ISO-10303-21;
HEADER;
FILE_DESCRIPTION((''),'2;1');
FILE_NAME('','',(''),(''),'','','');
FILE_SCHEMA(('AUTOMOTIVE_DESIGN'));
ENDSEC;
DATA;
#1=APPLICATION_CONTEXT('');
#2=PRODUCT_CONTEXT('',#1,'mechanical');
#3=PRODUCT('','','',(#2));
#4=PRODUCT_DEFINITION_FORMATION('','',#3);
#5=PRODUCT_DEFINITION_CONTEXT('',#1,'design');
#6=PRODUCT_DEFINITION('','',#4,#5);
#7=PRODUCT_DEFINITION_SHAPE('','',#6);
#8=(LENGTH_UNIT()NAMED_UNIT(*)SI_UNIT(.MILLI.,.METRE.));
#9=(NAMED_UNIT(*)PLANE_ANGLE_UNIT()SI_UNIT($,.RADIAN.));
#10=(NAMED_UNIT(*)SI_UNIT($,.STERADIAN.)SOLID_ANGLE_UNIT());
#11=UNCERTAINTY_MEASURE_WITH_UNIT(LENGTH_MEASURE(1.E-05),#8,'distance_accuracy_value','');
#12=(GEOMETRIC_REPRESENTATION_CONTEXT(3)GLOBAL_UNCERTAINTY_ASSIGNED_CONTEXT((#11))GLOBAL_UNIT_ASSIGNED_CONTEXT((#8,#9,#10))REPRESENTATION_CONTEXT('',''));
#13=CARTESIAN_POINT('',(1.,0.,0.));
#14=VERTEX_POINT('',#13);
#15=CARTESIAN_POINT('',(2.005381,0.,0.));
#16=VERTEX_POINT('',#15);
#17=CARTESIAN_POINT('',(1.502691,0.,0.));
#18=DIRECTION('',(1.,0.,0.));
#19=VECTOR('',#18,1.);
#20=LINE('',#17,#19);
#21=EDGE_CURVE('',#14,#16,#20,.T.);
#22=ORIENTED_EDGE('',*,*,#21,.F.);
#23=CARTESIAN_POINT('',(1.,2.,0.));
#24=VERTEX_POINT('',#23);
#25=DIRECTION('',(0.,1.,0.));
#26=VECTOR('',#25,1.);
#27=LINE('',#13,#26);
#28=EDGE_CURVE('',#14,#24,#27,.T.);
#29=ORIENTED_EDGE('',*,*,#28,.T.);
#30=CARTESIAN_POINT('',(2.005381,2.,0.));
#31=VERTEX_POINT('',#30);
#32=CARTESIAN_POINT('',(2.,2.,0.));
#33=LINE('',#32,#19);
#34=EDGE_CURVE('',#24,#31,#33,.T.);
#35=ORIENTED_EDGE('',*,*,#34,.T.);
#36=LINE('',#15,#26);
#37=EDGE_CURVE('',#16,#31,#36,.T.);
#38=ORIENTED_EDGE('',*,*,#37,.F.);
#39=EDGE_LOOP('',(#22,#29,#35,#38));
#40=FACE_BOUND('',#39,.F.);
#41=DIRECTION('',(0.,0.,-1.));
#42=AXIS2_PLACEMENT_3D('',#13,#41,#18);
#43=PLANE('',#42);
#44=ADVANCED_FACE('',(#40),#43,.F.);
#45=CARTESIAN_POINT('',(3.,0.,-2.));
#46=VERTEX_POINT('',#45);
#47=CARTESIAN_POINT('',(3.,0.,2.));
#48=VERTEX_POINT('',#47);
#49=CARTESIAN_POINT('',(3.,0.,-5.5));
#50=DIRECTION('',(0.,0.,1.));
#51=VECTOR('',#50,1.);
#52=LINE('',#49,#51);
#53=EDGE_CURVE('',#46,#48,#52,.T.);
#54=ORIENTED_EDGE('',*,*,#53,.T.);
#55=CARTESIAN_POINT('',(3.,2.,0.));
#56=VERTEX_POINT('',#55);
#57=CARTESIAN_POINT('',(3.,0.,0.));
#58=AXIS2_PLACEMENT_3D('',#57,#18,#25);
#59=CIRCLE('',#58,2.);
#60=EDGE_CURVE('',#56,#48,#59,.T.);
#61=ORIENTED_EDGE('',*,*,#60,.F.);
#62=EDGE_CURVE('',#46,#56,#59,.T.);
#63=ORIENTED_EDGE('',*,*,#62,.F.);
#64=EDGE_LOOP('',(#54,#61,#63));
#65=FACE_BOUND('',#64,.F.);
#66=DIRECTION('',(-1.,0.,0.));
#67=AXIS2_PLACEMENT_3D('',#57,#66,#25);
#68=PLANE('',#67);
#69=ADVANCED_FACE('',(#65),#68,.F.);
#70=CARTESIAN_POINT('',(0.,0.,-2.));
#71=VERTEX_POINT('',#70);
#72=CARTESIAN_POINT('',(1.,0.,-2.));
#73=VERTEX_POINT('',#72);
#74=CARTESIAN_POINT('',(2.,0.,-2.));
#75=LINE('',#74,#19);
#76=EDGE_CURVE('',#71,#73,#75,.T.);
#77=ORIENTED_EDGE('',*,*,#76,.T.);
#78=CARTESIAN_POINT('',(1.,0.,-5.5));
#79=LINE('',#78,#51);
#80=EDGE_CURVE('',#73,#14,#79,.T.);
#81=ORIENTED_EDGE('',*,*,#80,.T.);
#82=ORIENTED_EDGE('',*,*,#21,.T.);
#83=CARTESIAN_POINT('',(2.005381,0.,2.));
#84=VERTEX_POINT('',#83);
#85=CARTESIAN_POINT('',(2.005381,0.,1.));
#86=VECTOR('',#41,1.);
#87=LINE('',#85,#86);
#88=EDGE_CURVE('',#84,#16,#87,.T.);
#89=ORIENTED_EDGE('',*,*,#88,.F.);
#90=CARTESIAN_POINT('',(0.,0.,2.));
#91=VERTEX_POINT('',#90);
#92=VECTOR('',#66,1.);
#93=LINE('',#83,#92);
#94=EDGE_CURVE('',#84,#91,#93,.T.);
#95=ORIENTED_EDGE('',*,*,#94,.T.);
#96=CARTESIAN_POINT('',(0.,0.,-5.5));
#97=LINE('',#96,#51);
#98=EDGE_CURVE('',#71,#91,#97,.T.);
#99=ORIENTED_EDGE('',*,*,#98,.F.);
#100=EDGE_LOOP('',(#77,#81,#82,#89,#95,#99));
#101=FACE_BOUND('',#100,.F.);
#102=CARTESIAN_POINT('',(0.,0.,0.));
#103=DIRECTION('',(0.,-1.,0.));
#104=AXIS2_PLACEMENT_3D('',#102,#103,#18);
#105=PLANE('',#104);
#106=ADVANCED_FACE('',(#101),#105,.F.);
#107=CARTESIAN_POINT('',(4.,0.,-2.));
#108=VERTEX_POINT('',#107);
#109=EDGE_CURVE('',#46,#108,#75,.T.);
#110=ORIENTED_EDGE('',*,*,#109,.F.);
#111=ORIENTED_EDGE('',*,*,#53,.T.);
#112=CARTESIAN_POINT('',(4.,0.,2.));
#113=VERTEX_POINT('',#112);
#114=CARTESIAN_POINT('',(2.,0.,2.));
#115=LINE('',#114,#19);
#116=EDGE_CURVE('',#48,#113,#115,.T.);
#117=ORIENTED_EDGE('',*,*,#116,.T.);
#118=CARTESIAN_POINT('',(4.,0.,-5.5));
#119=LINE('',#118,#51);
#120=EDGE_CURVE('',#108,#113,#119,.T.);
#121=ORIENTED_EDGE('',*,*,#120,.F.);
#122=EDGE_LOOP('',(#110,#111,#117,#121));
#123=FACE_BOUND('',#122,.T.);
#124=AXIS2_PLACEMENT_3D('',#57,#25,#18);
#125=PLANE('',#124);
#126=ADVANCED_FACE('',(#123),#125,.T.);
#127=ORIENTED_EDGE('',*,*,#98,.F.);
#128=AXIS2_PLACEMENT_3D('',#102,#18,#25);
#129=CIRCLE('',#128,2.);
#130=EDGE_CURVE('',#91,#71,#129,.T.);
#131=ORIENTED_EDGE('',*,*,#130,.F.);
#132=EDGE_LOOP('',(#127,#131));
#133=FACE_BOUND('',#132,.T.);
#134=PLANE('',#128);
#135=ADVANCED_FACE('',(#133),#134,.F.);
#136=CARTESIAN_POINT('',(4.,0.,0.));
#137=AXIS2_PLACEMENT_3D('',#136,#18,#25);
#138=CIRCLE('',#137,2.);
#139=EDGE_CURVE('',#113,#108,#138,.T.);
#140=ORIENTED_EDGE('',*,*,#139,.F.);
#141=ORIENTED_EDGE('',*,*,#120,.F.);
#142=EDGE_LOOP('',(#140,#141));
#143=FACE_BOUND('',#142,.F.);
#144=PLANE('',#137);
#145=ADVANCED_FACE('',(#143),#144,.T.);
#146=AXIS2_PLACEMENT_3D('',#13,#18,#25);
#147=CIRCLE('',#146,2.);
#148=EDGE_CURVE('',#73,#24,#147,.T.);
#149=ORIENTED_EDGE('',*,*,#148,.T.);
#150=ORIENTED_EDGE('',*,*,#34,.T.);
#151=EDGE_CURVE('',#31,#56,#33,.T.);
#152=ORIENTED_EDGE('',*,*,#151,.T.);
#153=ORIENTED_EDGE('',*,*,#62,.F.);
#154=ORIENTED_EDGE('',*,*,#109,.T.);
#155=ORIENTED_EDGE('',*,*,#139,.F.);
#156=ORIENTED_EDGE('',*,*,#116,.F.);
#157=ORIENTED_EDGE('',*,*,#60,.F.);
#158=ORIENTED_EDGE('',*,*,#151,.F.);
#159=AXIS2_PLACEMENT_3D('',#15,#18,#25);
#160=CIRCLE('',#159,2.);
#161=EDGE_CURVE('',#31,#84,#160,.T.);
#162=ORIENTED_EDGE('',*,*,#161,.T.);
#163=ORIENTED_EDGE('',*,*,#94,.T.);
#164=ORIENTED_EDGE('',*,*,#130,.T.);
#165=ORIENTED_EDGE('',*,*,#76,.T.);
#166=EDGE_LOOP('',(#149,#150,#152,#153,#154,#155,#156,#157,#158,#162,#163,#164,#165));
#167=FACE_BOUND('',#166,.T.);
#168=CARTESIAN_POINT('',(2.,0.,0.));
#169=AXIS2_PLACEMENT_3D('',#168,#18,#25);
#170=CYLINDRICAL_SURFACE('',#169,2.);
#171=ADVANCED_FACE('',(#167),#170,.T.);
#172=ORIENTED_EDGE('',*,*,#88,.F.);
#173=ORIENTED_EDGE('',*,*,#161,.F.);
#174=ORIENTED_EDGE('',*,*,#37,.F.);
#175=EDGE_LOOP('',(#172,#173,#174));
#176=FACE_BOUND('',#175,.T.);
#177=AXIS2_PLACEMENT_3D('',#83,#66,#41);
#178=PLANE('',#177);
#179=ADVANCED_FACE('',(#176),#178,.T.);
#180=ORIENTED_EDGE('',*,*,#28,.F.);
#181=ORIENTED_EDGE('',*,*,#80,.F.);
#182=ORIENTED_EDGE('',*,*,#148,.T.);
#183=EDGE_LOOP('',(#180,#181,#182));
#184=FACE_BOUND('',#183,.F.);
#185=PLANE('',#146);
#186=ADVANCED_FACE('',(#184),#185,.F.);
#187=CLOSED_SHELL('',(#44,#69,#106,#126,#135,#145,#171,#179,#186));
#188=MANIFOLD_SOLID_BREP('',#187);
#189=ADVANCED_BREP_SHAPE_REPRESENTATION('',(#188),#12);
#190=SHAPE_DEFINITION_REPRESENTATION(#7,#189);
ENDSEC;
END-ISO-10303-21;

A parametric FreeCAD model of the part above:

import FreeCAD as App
import Part
import Sketcher
from FreeCAD import Vector
Q = App.Units.Quantity

doc = App.newDocument("Part")
body = doc.addObject("PartDesign::Body", "Body")

sketch1 = body.newObject("Sketcher::SketchObject", "Sketch")
sketch1.AttachmentSupport = (doc.getObject("XY_Plane"), [""])
sketch1.MapMode = "FlatFace"
sketch1.addGeometry(Part.LineSegment(Vector(0, 2, 0), Vector(0, 0, 0)), False)
sketch1.addGeometry(Part.LineSegment(Vector(0, 0, 0), Vector(4, 0, 0)), False)
sketch1.addGeometry(Part.LineSegment(Vector(4, 0, 0), Vector(4, 2, 0)), False)
sketch1.addGeometry(Part.LineSegment(Vector(4, 2, 0), Vector(0, 2, 0)), False)
sketch1.addConstraint(Sketcher.Constraint("Coincident", 0, 2, 1, 1))
sketch1.addConstraint(Sketcher.Constraint("Coincident", 1, 2, 2, 1))
sketch1.addConstraint(Sketcher.Constraint("Coincident", 2, 2, 3, 1))
sketch1.addConstraint(Sketcher.Constraint("Coincident", 3, 2, 0, 1))
sketch1.addConstraint(Sketcher.Constraint("Vertical", 0))
sketch1.addConstraint(Sketcher.Constraint("Horizontal", 1))
sketch1.addConstraint(Sketcher.Constraint("Vertical", 2))
sketch1.addConstraint(Sketcher.Constraint("Horizontal", 3))
sketch1.addConstraint(Sketcher.Constraint("Coincident", 0, 2, -1, 1))
sketch1.addConstraint(Sketcher.Constraint("DistanceX", 1, 1, 1, 2, Q("4 mm")))
sketch1.addConstraint(Sketcher.Constraint("DistanceY", 0, 2, 0, 1, Q("2 mm")))
revolution = body.newObject("PartDesign::Revolution", "Revolution")
revolution.Profile = sketch1
revolution.ReferenceAxis = (sketch1, ["H_Axis"])
revolution.Angle = 360

sketch2 = body.newObject("Sketcher::SketchObject", "Sketch001")
sketch2.AttachmentSupport = (doc.getObject("XY_Plane"), [""])
sketch2.MapMode = "FlatFace"
sketch2.addGeometry(Part.LineSegment(Vector(3, 2, 0), Vector(3, 0, 0)), False)
sketch2.addGeometry(Part.LineSegment(Vector(3, 0, 0), Vector(4, 0, 0)), False)
sketch2.addGeometry(Part.LineSegment(Vector(4, 0, 0), Vector(4, 2, 0)), False)
sketch2.addGeometry(Part.LineSegment(Vector(4, 2, 0), Vector(3, 2, 0)), False)
sketch2.addGeometry(Part.LineSegment(Vector(0, 2, 0), Vector(0, 0, 0)), False)
sketch2.addGeometry(Part.LineSegment(Vector(0, 0, 0), Vector(1, 0, 0)), False)
sketch2.addGeometry(Part.LineSegment(Vector(1, 0, 0), Vector(1, 2, 0)), False)
sketch2.addGeometry(Part.LineSegment(Vector(1, 2, 0), Vector(0, 2, 0)), False)
sketch2.addConstraint(Sketcher.Constraint("Coincident", 0, 2, 1, 1))
sketch2.addConstraint(Sketcher.Constraint("Coincident", 1, 2, 2, 1))
sketch2.addConstraint(Sketcher.Constraint("Coincident", 2, 2, 3, 1))
sketch2.addConstraint(Sketcher.Constraint("Coincident", 3, 2, 0, 1))
sketch2.addConstraint(Sketcher.Constraint("Coincident", 4, 2, 5, 1))
sketch2.addConstraint(Sketcher.Constraint("Coincident", 5, 2, 6, 1))
sketch2.addConstraint(Sketcher.Constraint("Coincident", 6, 2, 7, 1))
sketch2.addConstraint(Sketcher.Constraint("Coincident", 7, 2, 4, 1))
sketch2.addConstraint(Sketcher.Constraint("Vertical", 0))
sketch2.addConstraint(Sketcher.Constraint("Horizontal", 1))
sketch2.addConstraint(Sketcher.Constraint("Vertical", 2))
sketch2.addConstraint(Sketcher.Constraint("Horizontal", 3))
sketch2.addConstraint(Sketcher.Constraint("Vertical", 4))
sketch2.addConstraint(Sketcher.Constraint("Horizontal", 5))
sketch2.addConstraint(Sketcher.Constraint("Vertical", 6))
sketch2.addConstraint(Sketcher.Constraint("Horizontal", 7))
sketch2.addConstraint(Sketcher.Constraint("Coincident", 4, 2, -1, 1))
sketch2.addConstraint(Sketcher.Constraint("PointOnObject", 0, 2, -1))
sketch2.addConstraint(Sketcher.Constraint("Horizontal", 3, 2, 6, 2))
sketch2.addConstraint(Sketcher.Constraint("Equal", 3, 5))
sketch2.addConstraint(Sketcher.Constraint("DistanceX", 1, 1, 1, 2, Q("1 mm")))
sketch2.addConstraint(Sketcher.Constraint("DistanceY", 0, 2, 0, 1, Q("2 mm")))
sketch2.addConstraint(Sketcher.Constraint("DistanceX", -1, 1, 0, 2, Q("3 mm")))
pocket1 = body.newObject("PartDesign::Pocket", "Pocket")
pocket1.Profile = sketch2
pocket1.Length = 11
pocket1.Midplane = True

sketch3 = body.newObject("Sketcher::SketchObject", "Sketch002")
sketch3.AttachmentSupport = (doc.getObject("XZ_Plane"), [""])
sketch3.MapMode = "FlatFace"
sketch3.addGeometry(Part.LineSegment(Vector(1, 0, 0), Vector(1, 2, 0)), False)
sketch3.addGeometry(Part.LineSegment(Vector(1, 2, 0), Vector(2, 2, 0)), False)
sketch3.addGeometry(Part.LineSegment(Vector(2, 2, 0), Vector(2, 0, 0)), False)
sketch3.addGeometry(Part.LineSegment(Vector(2, 0, 0), Vector(1, 0, 0)), False)
sketch3.addConstraint(Sketcher.Constraint("Coincident", 0, 2, 1, 1))
sketch3.addConstraint(Sketcher.Constraint("Coincident", 1, 2, 2, 1))
sketch3.addConstraint(Sketcher.Constraint("Coincident", 2, 2, 3, 1))
sketch3.addConstraint(Sketcher.Constraint("Coincident", 3, 2, 0, 1))
sketch3.addConstraint(Sketcher.Constraint("Vertical", 0))
sketch3.addConstraint(Sketcher.Constraint("Horizontal", 1))
sketch3.addConstraint(Sketcher.Constraint("Vertical", 2))
sketch3.addConstraint(Sketcher.Constraint("Horizontal", 3))
sketch3.addConstraint(Sketcher.Constraint("PointOnObject", 2, 2, -1))
sketch3.addConstraint(Sketcher.Constraint("DistanceY", 0, 1, 0, 2, Q("2 mm")))
sketch3.addConstraint(Sketcher.Constraint("DistanceX", -1, 1, 0, 2, Q("1 mm")))
sketch3.addConstraint(Sketcher.Constraint("DistanceX", 1, 1, 1, 2, Q("1.005381 mm")))
pocket2 = body.newObject("PartDesign::Pocket", "Pocket001")
pocket2.Profile = sketch3
pocket2.Length = 3

doc.recompute()
